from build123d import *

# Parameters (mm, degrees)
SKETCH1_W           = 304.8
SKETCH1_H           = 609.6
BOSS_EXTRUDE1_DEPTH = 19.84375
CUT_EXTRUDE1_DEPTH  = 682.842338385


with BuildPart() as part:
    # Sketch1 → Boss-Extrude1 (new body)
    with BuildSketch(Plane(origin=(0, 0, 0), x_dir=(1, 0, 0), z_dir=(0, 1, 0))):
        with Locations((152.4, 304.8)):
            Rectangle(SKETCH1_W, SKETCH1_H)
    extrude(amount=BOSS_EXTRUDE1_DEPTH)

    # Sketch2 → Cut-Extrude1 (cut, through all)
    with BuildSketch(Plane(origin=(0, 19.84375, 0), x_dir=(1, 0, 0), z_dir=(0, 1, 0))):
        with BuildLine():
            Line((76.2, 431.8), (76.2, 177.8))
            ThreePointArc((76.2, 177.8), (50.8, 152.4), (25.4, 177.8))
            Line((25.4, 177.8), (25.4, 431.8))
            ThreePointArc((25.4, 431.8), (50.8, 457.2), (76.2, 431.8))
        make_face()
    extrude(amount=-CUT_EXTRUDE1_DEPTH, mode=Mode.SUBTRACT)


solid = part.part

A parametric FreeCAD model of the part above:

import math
import FreeCAD as App
import Part
import Sketcher
Q = App.Units.Quantity


def add_polygon(sketch, points):
    """Adds a closed chain of lines whose ends are joined by coincident constraints."""
    first, n = sketch.GeometryCount, len(points)
    for a, b in zip(points, points[1:] + points[:1]):
        sketch.addGeometry(Part.LineSegment(App.Vector(*a, 0), App.Vector(*b, 0)), False)
    for i in range(n):
        sketch.addConstraint(Sketcher.Constraint("Coincident", first + i, 2, first + (i + 1) % n, 1))

doc = App.newDocument("Part")
body = doc.addObject("PartDesign::Body", "Body")

sketch1 = doc.addObject("Sketcher::SketchObject", "Sketch")
body.addObject(sketch1)
sketch1.AttachmentSupport = (doc.XZ_Plane, [""])
sketch1.MapMode = "FlatFace"
add_polygon(sketch1, [(0, -609.6), (0, 0), (304.8, 0), (304.8, -609.6)])
sketch1.addConstraint([
    Sketcher.Constraint("Vertical", 0),
    Sketcher.Constraint("Horizontal", 1),
    Sketcher.Constraint("Vertical", 2),
    Sketcher.Constraint("Horizontal", 3),
    Sketcher.Constraint("Coincident", 0, 2, -1, 1),
    Sketcher.Constraint("DistanceX", 1, 1, 1, 2, Q("12 in")),
    Sketcher.Constraint("DistanceY", 0, 1, 0, 2, Q("24 in")),
])
pad1 = doc.addObject("PartDesign::Pad", "Pad")
body.addObject(pad1)
pad1.Profile = sketch1
pad1.Length = Q("0.78125 in")
pad1.Reversed = True

sketch2 = doc.addObject("Sketcher::SketchObject", "Sketch001")
body.addObject(sketch2)
sketch2.AttachmentSupport = (doc.XZ_Plane, [""])
sketch2.MapMode = "FlatFace"
sketch2.AttachmentOffset = App.Placement(App.Vector(0, 0, -0.78125 * 25.4), App.Rotation())
sketch2.addGeometry([
    Part.LineSegment(App.Vector(76.2, -177.8, 0), App.Vector(76.2, -431.8, 0)),
    Part.ArcOfCircle(Part.Circle(App.Vector(50.8, -431.8, 0), App.Vector(0, 0, 1), 25.4), math.radians(180), math.radians(360)),
    Part.LineSegment(App.Vector(25.4, -431.8, 0), App.Vector(25.4, -177.8, 0)),
    Part.ArcOfCircle(Part.Circle(App.Vector(50.8, -177.8, 0), App.Vector(0, 0, 1), 25.4), math.radians(0), math.radians(180)),
], False)
sketch2.addConstraint([
    Sketcher.Constraint("Tangent", 0, 2, 1, 2),
    Sketcher.Constraint("Tangent", 1, 1, 2, 1),
    Sketcher.Constraint("Tangent", 2, 2, 3, 2),
    Sketcher.Constraint("Tangent", 3, 1, 0, 1),
    Sketcher.Constraint("Vertical", 0),
    Sketcher.Constraint("Vertical", 2),
    Sketcher.Constraint("Radius", 1, Q("1 in")),
    Sketcher.Constraint("DistanceY", 0, 2, 0, 1, Q("10 in")),
    Sketcher.Constraint("DistanceX", -1, 1, 1, 3, Q("2 in")),
    Sketcher.Constraint("DistanceY", 1, 3, -1, 1, Q("17 in")),
])
pocket1 = doc.addObject("PartDesign::Pocket", "Pocket")
body.addObject(pocket1)
pocket1.Profile = sketch2
pocket1.Type = "ThroughAll"
pocket1.Reversed = True

doc.recompute()
